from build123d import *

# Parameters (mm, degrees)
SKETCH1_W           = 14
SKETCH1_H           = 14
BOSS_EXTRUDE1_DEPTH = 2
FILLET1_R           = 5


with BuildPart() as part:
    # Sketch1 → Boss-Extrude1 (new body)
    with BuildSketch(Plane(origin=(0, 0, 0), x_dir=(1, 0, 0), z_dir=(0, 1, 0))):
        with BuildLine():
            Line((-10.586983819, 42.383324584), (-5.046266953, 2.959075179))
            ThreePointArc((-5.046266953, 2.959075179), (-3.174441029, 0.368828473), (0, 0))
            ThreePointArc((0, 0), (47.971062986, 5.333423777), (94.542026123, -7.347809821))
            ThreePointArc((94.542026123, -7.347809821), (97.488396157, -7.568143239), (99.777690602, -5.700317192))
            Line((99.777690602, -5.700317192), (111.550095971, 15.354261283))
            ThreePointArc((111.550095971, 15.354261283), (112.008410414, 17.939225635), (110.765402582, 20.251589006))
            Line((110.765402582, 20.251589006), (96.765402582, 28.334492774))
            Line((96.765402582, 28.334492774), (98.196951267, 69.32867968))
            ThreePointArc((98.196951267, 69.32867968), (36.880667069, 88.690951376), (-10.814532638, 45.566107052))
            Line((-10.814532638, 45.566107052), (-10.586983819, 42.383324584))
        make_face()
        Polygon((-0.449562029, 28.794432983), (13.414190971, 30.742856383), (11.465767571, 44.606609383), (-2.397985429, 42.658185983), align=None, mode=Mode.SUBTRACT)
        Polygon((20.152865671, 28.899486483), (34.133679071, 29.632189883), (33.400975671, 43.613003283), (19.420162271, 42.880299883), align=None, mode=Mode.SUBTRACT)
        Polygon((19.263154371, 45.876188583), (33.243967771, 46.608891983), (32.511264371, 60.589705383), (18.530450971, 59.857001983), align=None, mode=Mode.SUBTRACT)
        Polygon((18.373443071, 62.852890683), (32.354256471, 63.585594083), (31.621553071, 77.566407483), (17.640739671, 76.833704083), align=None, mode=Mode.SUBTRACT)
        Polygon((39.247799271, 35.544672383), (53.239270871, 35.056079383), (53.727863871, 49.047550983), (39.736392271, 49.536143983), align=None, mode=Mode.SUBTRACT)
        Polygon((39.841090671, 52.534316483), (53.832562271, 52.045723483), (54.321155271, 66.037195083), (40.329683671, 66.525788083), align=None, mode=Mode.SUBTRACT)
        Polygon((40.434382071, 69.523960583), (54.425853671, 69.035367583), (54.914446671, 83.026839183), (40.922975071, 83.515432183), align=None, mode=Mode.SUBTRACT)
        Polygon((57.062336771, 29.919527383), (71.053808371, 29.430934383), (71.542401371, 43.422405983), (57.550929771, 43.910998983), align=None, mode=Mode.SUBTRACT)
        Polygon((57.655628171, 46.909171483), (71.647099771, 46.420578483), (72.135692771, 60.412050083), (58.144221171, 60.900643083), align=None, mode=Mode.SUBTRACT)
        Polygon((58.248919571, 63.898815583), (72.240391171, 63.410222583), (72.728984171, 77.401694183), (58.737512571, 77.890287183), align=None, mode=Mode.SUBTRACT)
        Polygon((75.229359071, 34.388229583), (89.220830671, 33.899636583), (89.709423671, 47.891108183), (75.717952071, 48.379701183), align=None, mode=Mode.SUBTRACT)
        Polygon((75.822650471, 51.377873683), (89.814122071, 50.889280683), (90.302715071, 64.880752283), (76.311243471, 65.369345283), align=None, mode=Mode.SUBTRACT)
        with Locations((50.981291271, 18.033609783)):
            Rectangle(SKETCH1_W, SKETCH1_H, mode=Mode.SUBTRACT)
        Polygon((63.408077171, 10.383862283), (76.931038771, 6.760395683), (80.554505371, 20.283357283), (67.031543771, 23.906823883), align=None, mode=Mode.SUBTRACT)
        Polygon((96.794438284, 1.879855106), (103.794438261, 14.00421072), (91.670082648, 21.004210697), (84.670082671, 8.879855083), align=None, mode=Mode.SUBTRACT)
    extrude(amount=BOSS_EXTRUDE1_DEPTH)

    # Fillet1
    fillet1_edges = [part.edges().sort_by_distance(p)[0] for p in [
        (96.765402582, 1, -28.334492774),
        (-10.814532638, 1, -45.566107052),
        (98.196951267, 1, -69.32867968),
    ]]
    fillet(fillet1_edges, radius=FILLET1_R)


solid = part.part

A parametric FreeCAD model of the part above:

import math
import FreeCAD as App
import Part
import Sketcher
Q = App.Units.Quantity


def edges_at(feature, points):
    """Names of the edges that pass closest to the given points."""
    edges = feature.Shape.Edges
    near = lambda p: min(range(len(edges)), key=lambda i: edges[i].distToShape(Part.Vertex(*p))[0])
    return sorted({f"Edge{near(p) + 1}" for p in points})

doc = App.newDocument("Part")
body = doc.addObject("PartDesign::Body", "Body")

sketch1 = body.newObject("Sketcher::SketchObject", "Sketch")
sketch1.AttachmentSupport = (doc.getObject("XZ_Plane"), [""])
sketch1.MapMode = "FlatFace"
sketch1.addGeometry([
    Part.LineSegment(App.Vector(-10.6, -42.4, 0), App.Vector(-5, -3, 0)),
    Part.ArcOfCircle(Part.Circle(App.Vector(-1.2, -3.8, 0), App.Vector(0, 0, 1), 4), math.radians(73), math.radians(168)),
    Part.ArcOfCircle(Part.Circle(App.Vector(38, 123.2, 0), App.Vector(0, 0, 1), 128.9), math.radians(-107), math.radians(-64)),
    Part.ArcOfCircle(Part.Circle(App.Vector(96.3, 3.8, 0), App.Vector(0, 0, 1), 4), math.radians(29), math.radians(116)),
    Part.LineSegment(App.Vector(99.8, 5.7, 0), App.Vector(111.6, -15.4, 0)),
    Part.ArcOfCircle(Part.Circle(App.Vector(108.1, -17.3, 0), App.Vector(0, 0, 1), 4), math.radians(-47), math.radians(29)),
    Part.LineSegment(App.Vector(110.8, -20.3, 0), App.Vector(96.8, -28.3, 0)),
    Part.LineSegment(App.Vector(96.8, -28.3, 0), App.Vector(98.2, -69.3, 0)),
    Part.ArcOfCircle(Part.Circle(App.Vector(50.6, -25.5, 0), App.Vector(0, 0, 1), 64.6), math.radians(-162), math.radians(-43)),
    Part.LineSegment(App.Vector(-10.8, -45.6, 0), App.Vector(-10.6, -42.4, 0)),
    Part.LineSegment(App.Vector(13.4, -30.7, 0), App.Vector(-0.4, -28.8, 0)),
    Part.LineSegment(App.Vector(-0.4, -28.8, 0), App.Vector(-2.4, -42.7, 0)),
    Part.LineSegment(App.Vector(-2.4, -42.7, 0), App.Vector(11.5, -44.6, 0)),
    Part.LineSegment(App.Vector(11.5, -44.6, 0), App.Vector(13.4, -30.7, 0)),
    Part.LineSegment(App.Vector(34.1, -29.6, 0), App.Vector(20.2, -28.9, 0)),
    Part.LineSegment(App.Vector(20.2, -28.9, 0), App.Vector(19.4, -42.9, 0)),
    Part.LineSegment(App.Vector(19.4, -42.9, 0), App.Vector(33.4, -43.6, 0)),
    Part.LineSegment(App.Vector(33.4, -43.6, 0), App.Vector(34.1, -29.6, 0)),
    Part.LineSegment(App.Vector(53.2, -35.1, 0), App.Vector(39.2, -35.5, 0)),
    Part.LineSegment(App.Vector(39.2, -35.5, 0), App.Vector(39.7, -49.5, 0)),
    Part.LineSegment(App.Vector(39.7, -49.5, 0), App.Vector(53.7, -49, 0)),
    Part.LineSegment(App.Vector(53.7, -49, 0), App.Vector(53.2, -35.1, 0)),
    Part.LineSegment(App.Vector(58, -11, 0), App.Vector(44, -11, 0)),
    Part.LineSegment(App.Vector(44, -11, 0), App.Vector(44, -25, 0)),
    Part.LineSegment(App.Vector(44, -25, 0), App.Vector(58, -25, 0)),
    Part.LineSegment(App.Vector(58, -25, 0), App.Vector(58, -11, 0)),
    Part.LineSegment(App.Vector(76.9, -6.8, 0), App.Vector(63.4, -10.4, 0)),
    Part.LineSegment(App.Vector(63.4, -10.4, 0), App.Vector(67, -23.9, 0)),
    Part.LineSegment(App.Vector(67, -23.9, 0), App.Vector(80.6, -20.3, 0)),
    Part.LineSegment(App.Vector(80.6, -20.3, 0), App.Vector(76.9, -6.8, 0)),
    Part.LineSegment(App.Vector(103.8, -14, 0), App.Vector(96.8, -1.9, 0)),
    Part.LineSegment(App.Vector(96.8, -1.9, 0), App.Vector(84.7, -8.9, 0)),
    Part.LineSegment(App.Vector(84.7, -8.9, 0), App.Vector(91.7, -21, 0)),
    Part.LineSegment(App.Vector(91.7, -21, 0), App.Vector(103.8, -14, 0)),
    Part.LineSegment(App.Vector(71.1, -29.4, 0), App.Vector(57.1, -29.9, 0)),
    Part.LineSegment(App.Vector(57.1, -29.9, 0), App.Vector(57.6, -43.9, 0)),
    Part.LineSegment(App.Vector(57.6, -43.9, 0), App.Vector(71.5, -43.4, 0)),
    Part.LineSegment(App.Vector(71.5, -43.4, 0), App.Vector(71.1, -29.4, 0)),
    Part.LineSegment(App.Vector(89.2, -33.9, 0), App.Vector(75.2, -34.4, 0)),
    Part.LineSegment(App.Vector(75.2, -34.4, 0), App.Vector(75.7, -48.4, 0)),
    Part.LineSegment(App.Vector(75.7, -48.4, 0), App.Vector(89.7, -47.9, 0)),
    Part.LineSegment(App.Vector(89.7, -47.9, 0), App.Vector(89.2, -33.9, 0)),
    Part.LineSegment(App.Vector(33.2, -46.6, 0), App.Vector(19.3, -45.9, 0)),
    Part.LineSegment(App.Vector(19.3, -45.9, 0), App.Vector(18.5, -59.9, 0)),
    Part.LineSegment(App.Vector(18.5, -59.9, 0), App.Vector(32.5, -60.6, 0)),
    Part.LineSegment(App.Vector(32.5, -60.6, 0), App.Vector(33.2, -46.6, 0)),
    Part.LineSegment(App.Vector(53.8, -52, 0), App.Vector(39.8, -52.5, 0)),
    Part.LineSegment(App.Vector(39.8, -52.5, 0), App.Vector(40.3, -66.5, 0)),
    Part.LineSegment(App.Vector(40.3, -66.5, 0), App.Vector(54.3, -66, 0)),
    Part.LineSegment(App.Vector(54.3, -66, 0), App.Vector(53.8, -52, 0)),
    Part.LineSegment(App.Vector(32.4, -63.6, 0), App.Vector(18.4, -62.9, 0)),
    Part.LineSegment(App.Vector(18.4, -62.9, 0), App.Vector(17.6, -76.8, 0)),
    Part.LineSegment(App.Vector(17.6, -76.8, 0), App.Vector(31.6, -77.6, 0)),
    Part.LineSegment(App.Vector(31.6, -77.6, 0), App.Vector(32.4, -63.6, 0)),
    Part.LineSegment(App.Vector(54.4, -69, 0), App.Vector(40.4, -69.5, 0)),
    Part.LineSegment(App.Vector(40.4, -69.5, 0), App.Vector(40.9, -83.5, 0)),
    Part.LineSegment(App.Vector(40.9, -83.5, 0), App.Vector(54.9, -83, 0)),
    Part.LineSegment(App.Vector(54.9, -83, 0), App.Vector(54.4, -69, 0)),
    Part.LineSegment(App.Vector(71.6, -46.4, 0), App.Vector(57.7, -46.9, 0)),
    Part.LineSegment(App.Vector(57.7, -46.9, 0), App.Vector(58.1, -60.9, 0)),
    Part.LineSegment(App.Vector(58.1, -60.9, 0), App.Vector(72.1, -60.4, 0)),
    Part.LineSegment(App.Vector(72.1, -60.4, 0), App.Vector(71.6, -46.4, 0)),
    Part.LineSegment(App.Vector(89.8, -50.9, 0), App.Vector(75.8, -51.4, 0)),
    Part.LineSegment(App.Vector(75.8, -51.4, 0), App.Vector(76.3, -65.4, 0)),
    Part.LineSegment(App.Vector(76.3, -65.4, 0), App.Vector(90.3, -64.9, 0)),
    Part.LineSegment(App.Vector(90.3, -64.9, 0), App.Vector(89.8, -50.9, 0)),
    Part.LineSegment(App.Vector(72.2, -63.4, 0), App.Vector(58.2, -63.9, 0)),
    Part.LineSegment(App.Vector(58.2, -63.9, 0), App.Vector(58.7, -77.9, 0)),
    Part.LineSegment(App.Vector(58.7, -77.9, 0), App.Vector(72.7, -77.4, 0)),
    Part.LineSegment(App.Vector(72.7, -77.4, 0), App.Vector(72.2, -63.4, 0)),
], False)
sketch1.addConstraint([
    Sketcher.Constraint("Coincident", 0, 2, 1, 2),
    Sketcher.Constraint("Tangent", 1, 1, 2, 1),
    Sketcher.Constraint("Tangent", 2, 2, 3, 2),
    Sketcher.Constraint("Coincident", 3, 1, 4, 1),
    Sketcher.Constraint("Tangent", 4, 2, 5, 2),
    Sketcher.Constraint("Coincident", 5, 1, 6, 1),
    Sketcher.Constraint("Coincident", 6, 2, 7, 1),
    Sketcher.Constraint("Coincident", 7, 2, 8, 2),
    Sketcher.Constraint("Coincident", 8, 1, 9, 1),
    Sketcher.Constraint("Coincident", 9, 2, 0, 1),
    Sketcher.Constraint("Coincident", 10, 2, 11, 1),
    Sketcher.Constraint("Coincident", 11, 2, 12, 1),
    Sketcher.Constraint("Coincident", 12, 2, 13, 1),
    Sketcher.Constraint("Coincident", 13, 2, 10, 1),
    Sketcher.Constraint("Coincident", 14, 2, 15, 1),
    Sketcher.Constraint("Coincident", 15, 2, 16, 1),
    Sketcher.Constraint("Coincident", 16, 2, 17, 1),
    Sketcher.Constraint("Coincident", 17, 2, 14, 1),
    Sketcher.Constraint("Coincident", 18, 2, 19, 1),
    Sketcher.Constraint("Coincident", 19, 2, 20, 1),
    Sketcher.Constraint("Coincident", 20, 2, 21, 1),
    Sketcher.Constraint("Coincident", 21, 2, 18, 1),
    Sketcher.Constraint("Coincident", 22, 2, 23, 1),
    Sketcher.Constraint("Coincident", 23, 2, 24, 1),
    Sketcher.Constraint("Coincident", 24, 2, 25, 1),
    Sketcher.Constraint("Coincident", 25, 2, 22, 1),
    Sketcher.Constraint("Coincident", 26, 2, 27, 1),
    Sketcher.Constraint("Coincident", 27, 2, 28, 1),
    Sketcher.Constraint("Coincident", 28, 2, 29, 1),
    Sketcher.Constraint("Coincident", 29, 2, 26, 1),
    Sketcher.Constraint("Coincident", 30, 2, 31, 1),
    Sketcher.Constraint("Coincident", 31, 2, 32, 1),
    Sketcher.Constraint("Coincident", 32, 2, 33, 1),
    Sketcher.Constraint("Coincident", 33, 2, 30, 1),
    Sketcher.Constraint("Coincident", 34, 2, 35, 1),
    Sketcher.Constraint("Coincident", 35, 2, 36, 1),
    Sketcher.Constraint("Coincident", 36, 2, 37, 1),
    Sketcher.Constraint("Coincident", 37, 2, 34, 1),
    Sketcher.Constraint("Coincident", 38, 2, 39, 1),
    Sketcher.Constraint("Coincident", 39, 2, 40, 1),
    Sketcher.Constraint("Coincident", 40, 2, 41, 1),
    Sketcher.Constraint("Coincident", 41, 2, 38, 1),
    Sketcher.Constraint("Coincident", 42, 2, 43, 1),
    Sketcher.Constraint("Coincident", 43, 2, 44, 1),
    Sketcher.Constraint("Coincident", 44, 2, 45, 1),
    Sketcher.Constraint("Coincident", 45, 2, 42, 1),
    Sketcher.Constraint("Coincident", 46, 2, 47, 1),
    Sketcher.Constraint("Coincident", 47, 2, 48, 1),
    Sketcher.Constraint("Coincident", 48, 2, 49, 1),
    Sketcher.Constraint("Coincident", 49, 2, 46, 1),
    Sketcher.Constraint("Coincident", 50, 2, 51, 1),
    Sketcher.Constraint("Coincident", 51, 2, 52, 1),
    Sketcher.Constraint("Coincident", 52, 2, 53, 1),
    Sketcher.Constraint("Coincident", 53, 2, 50, 1),
    Sketcher.Constraint("Coincident", 54, 2, 55, 1),
    Sketcher.Constraint("Coincident", 55, 2, 56, 1),
    Sketcher.Constraint("Coincident", 56, 2, 57, 1),
    Sketcher.Constraint("Coincident", 57, 2, 54, 1),
    Sketcher.Constraint("Coincident", 58, 2, 59, 1),
    Sketcher.Constraint("Coincident", 59, 2, 60, 1),
    Sketcher.Constraint("Coincident", 60, 2, 61, 1),
    Sketcher.Constraint("Coincident", 61, 2, 58, 1),
    Sketcher.Constraint("Coincident", 62, 2, 63, 1),
    Sketcher.Constraint("Coincident", 63, 2, 64, 1),
    Sketcher.Constraint("Coincident", 64, 2, 65, 1),
    Sketcher.Constraint("Coincident", 65, 2, 62, 1),
    Sketcher.Constraint("Coincident", 66, 2, 67, 1),
    Sketcher.Constraint("Coincident", 67, 2, 68, 1),
    Sketcher.Constraint("Coincident", 68, 2, 69, 1),
    Sketcher.Constraint("Coincident", 69, 2, 66, 1),
    Sketcher.Constraint("Horizontal", 22),
    Sketcher.Constraint("Vertical", 23),
    Sketcher.Constraint("Horizontal", 24),
    Sketcher.Constraint("Vertical", 25),
    Sketcher.Constraint("Coincident", 1, 1, -1, 1),
    Sketcher.Constraint("Perpendicular", 0, 10),
    Sketcher.Constraint("Perpendicular", 10, 11),
    Sketcher.Constraint("Perpendicular", 11, 12),
    Sketcher.Constraint("Perpendicular", 12, 13),
    Sketcher.Constraint("Perpendicular", 14, 15),
    Sketcher.Constraint("Perpendicular", 15, 16),
    Sketcher.Constraint("Perpendicular", 16, 17),
    Sketcher.Constraint("Perpendicular", 7, 18),
    Sketcher.Constraint("Perpendicular", 18, 19),
    Sketcher.Constraint("Perpendicular", 19, 20),
    Sketcher.Constraint("Perpendicular", 20, 21),
    Sketcher.Constraint("Perpendicular", 26, 27),
    Sketcher.Constraint("Perpendicular", 27, 28),
    Sketcher.Constraint("Perpendicular", 28, 29),
    Sketcher.Constraint("Perpendicular", 6, 30),
    Sketcher.Constraint("Perpendicular", 30, 31),
    Sketcher.Constraint("Perpendicular", 31, 32),
    Sketcher.Constraint("Perpendicular", 32, 33),
    Sketcher.Constraint("Perpendicular", 21, 34),
    Sketcher.Constraint("Perpendicular", 34, 35),
    Sketcher.Constraint("Perpendicular", 35, 36),
    Sketcher.Constraint("Perpendicular", 36, 37),
    Sketcher.Constraint("Perpendicular", 37, 38),
    Sketcher.Constraint("Perpendicular", 38, 39),
    Sketcher.Constraint("Perpendicular", 39, 40),
    Sketcher.Constraint("Perpendicular", 40, 41),
    Sketcher.Constraint("Perpendicular", 17, 42),
    Sketcher.Constraint("Perpendicular", 42, 43),
    Sketcher.Constraint("Perpendicular", 43, 44),
    Sketcher.Constraint("Perpendicular", 44, 45),
    Sketcher.Constraint("Perpendicular", 41, 46),
    Sketcher.Constraint("Perpendicular", 46, 47),
    Sketcher.Constraint("Perpendicular", 47, 48),
    Sketcher.Constraint("Perpendicular", 48, 49),
    Sketcher.Constraint("Perpendicular", 45, 50),
    Sketcher.Constraint("Perpendicular", 50, 51),
    Sketcher.Constraint("Perpendicular", 51, 52),
    Sketcher.Constraint("Perpendicular", 52, 53),
    Sketcher.Constraint("Perpendicular", 49, 54),
    Sketcher.Constraint("Perpendicular", 54, 55),
    Sketcher.Constraint("Perpendicular", 55, 56),
    Sketcher.Constraint("Perpendicular", 56, 57),
    Sketcher.Constraint("Perpendicular", 57, 58),
    Sketcher.Constraint("Perpendicular", 58, 59),
    Sketcher.Constraint("Perpendicular", 59, 60),
    Sketcher.Constraint("Perpendicular", 60, 61),
    Sketcher.Constraint("Perpendicular", 61, 62),
    Sketcher.Constraint("Perpendicular", 62, 63),
    Sketcher.Constraint("Perpendicular", 63, 64),
    Sketcher.Constraint("Perpendicular", 64, 65),
    Sketcher.Constraint("Perpendicular", 65, 66),
    Sketcher.Constraint("Perpendicular", 66, 67),
    Sketcher.Constraint("Perpendicular", 67, 68),
    Sketcher.Constraint("Perpendicular", 68, 69),
    Sketcher.Constraint("Equal", 24, 23),
    Sketcher.Constraint("Equal", 10, 11),
    Sketcher.Constraint("Equal", 13, 14),
    Sketcher.Constraint("Equal", 14, 15),
    Sketcher.Constraint("Equal", 17, 18),
    Sketcher.Constraint("Equal", 18, 19),
    Sketcher.Constraint("Equal", 21, 26),
    Sketcher.Constraint("Equal", 26, 27),
    Sketcher.Constraint("Equal", 29, 30),
    Sketcher.Constraint("Equal", 30, 31),
    Sketcher.Constraint("Equal", 33, 34),
    Sketcher.Constraint("Equal", 34, 35),
    Sketcher.Constraint("Equal", 37, 38),
    Sketcher.Constraint("Equal", 38, 39),
    Sketcher.Constraint("Equal", 41, 42),
    Sketcher.Constraint("Equal", 42, 43),
    Sketcher.Constraint("Equal", 45, 46),
    Sketcher.Constraint("Equal", 46, 47),
    Sketcher.Constraint("Equal", 49, 50),
    Sketcher.Constraint("Equal", 50, 51),
    Sketcher.Constraint("Equal", 53, 54),
    Sketcher.Constraint("Equal", 54, 55),
    Sketcher.Constraint("Equal", 57, 58),
    Sketcher.Constraint("Equal", 58, 59),
    Sketcher.Constraint("Equal", 61, 62),
    Sketcher.Constraint("Equal", 62, 63),
    Sketcher.Constraint("Equal", 65, 66),
    Sketcher.Constraint("Equal", 66, 67),
    Sketcher.Constraint("Radius", 5, Q("4 mm")),
    Sketcher.Constraint("DistanceX", 22, 2, 22, 1, Q("14 mm")),
    Sketcher.Constraint("Angle", 0, Q("82 deg")),
    Sketcher.Constraint("Angle", 6, Q("-150 deg")),
    Sketcher.Constraint("Angle", 7, Q("-88 deg")),
    Sketcher.Constraint("Angle", 14, Q("177 deg")),
    Sketcher.Constraint("Angle", 26, Q("-165 deg")),
    Sketcher.Constraint("Distance", 10, Q("14 mm")),
    Sketcher.Constraint("DistanceY", 35, 2, -1, 1, Q("43.910999 mm")),
    Sketcher.Constraint("DistanceY", 43, 2, -1, 1, Q("59.857002 mm")),
    Sketcher.Constraint("Radius", 1, Q("3.965993 mm")),
    Sketcher.Constraint("Radius", 2, Q("128.931896 mm")),
    Sketcher.Constraint("Radius", 3, Q("3.987777 mm")),
    Sketcher.Constraint("Radius", 8, Q("64.648876 mm")),
    Sketcher.Constraint("DistanceX", -1, 1, 2, 3, Q("37.980599 mm")),
    Sketcher.Constraint("DistanceY", 15, 2, -1, 1, Q("42.8803 mm")),
    Sketcher.Constraint("DistanceX", -1, 1, 18, 2, Q("39.247799 mm")),
    Sketcher.Constraint("DistanceX", -1, 1, 36, 2, Q("71.542401 mm")),
    Sketcher.Constraint("DistanceY", 39, 2, -1, 1, Q("48.379701 mm")),
    Sketcher.Constraint("DistanceX", -1, 1, 61, 2, Q("71.6471 mm")),
    Sketcher.Constraint("Distance", 4, Q("24.122289 mm")),
    Sketcher.Constraint("DistanceX", -1, 1, 5, 3, Q("108.058789 mm")),
    Sketcher.Constraint("DistanceY", -1, 1, 2, 2, Q("7.34781 mm")),
    Sketcher.Constraint("DistanceX", -1, 1, 3, 1, Q("99.777691 mm")),
    Sketcher.Constraint("DistanceY", 5, 1, -1, 1, Q("20.251589 mm")),
    Sketcher.Constraint("DistanceX", -1, 1, 7, 2, Q("98.196951 mm")),
    Sketcher.Constraint("DistanceY", 7, 2, -1, 1, Q("69.32868 mm")),
    Sketcher.Constraint("DistanceY", 12, 2, -1, 1, Q("44.606609 mm")),
    Sketcher.Constraint("DistanceX", -1, 1, 13, 2, Q("13.414191 mm")),
    Sketcher.Constraint("DistanceX", -1, 1, 17, 2, Q("34.133679 mm")),
    Sketcher.Constraint("DistanceY", 20, 2, -1, 1, Q("49.047551 mm")),
    Sketcher.Constraint("DistanceX", -1, 1, 22, 2, Q("43.981291 mm")),
    Sketcher.Constraint("DistanceY", 22, 2, -1, 1, Q("11.03361 mm")),
    Sketcher.Constraint("DistanceX", -1, 1, 29, 2, Q("76.931039 mm")),
    Sketcher.Constraint("DistanceX", -1, 1, 30, 2, Q("96.794438 mm")),
    Sketcher.Constraint("DistanceY", 32, 2, -1, 1, Q("21.004211 mm")),
    Sketcher.Constraint("DistanceX", -1, 1, 38, 2, Q("75.229359 mm")),
    Sketcher.Constraint("DistanceX", -1, 1, 43, 2, Q("18.530451 mm")),
    Sketcher.Constraint("DistanceX", -1, 1, 46, 2, Q("39.841091 mm")),
    Sketcher.Constraint("DistanceY", 47, 2, -1, 1, Q("66.525788 mm")),
    Sketcher.Constraint("DistanceY", 50, 2, -1, 1, Q("62.852891 mm")),
    Sketcher.Constraint("DistanceX", -1, 1, 51, 2, Q("17.64074 mm")),
    Sketcher.Constraint("DistanceY", 54, 2, -1, 1, Q("69.523961 mm")),
    Sketcher.Constraint("DistanceY", 58, 2, -1, 1, Q("46.909171 mm")),
    Sketcher.Constraint("DistanceX", -1, 1, 62, 2, Q("75.82265 mm")),
    Sketcher.Constraint("DistanceY", 65, 2, -1, 1, Q("50.889281 mm")),
    Sketcher.Constraint("DistanceX", -1, 1, 66, 2, Q("58.24892 mm")),
    Sketcher.Constraint("Distance", 0, Q("39.811694 mm")),
    Sketcher.Constraint("Distance", 9, Q("3.190906 mm")),
    Sketcher.Constraint("DistanceX", -1, 1, 8, 3, Q("50.649648 mm")),
    Sketcher.Constraint("DistanceX", 0, 2, -1, 1, Q("5.046267 mm")),
    Sketcher.Constraint("DistanceY", 26, 2, -1, 1, Q("10.383862 mm")),
    Sketcher.Constraint("DistanceX", -1, 1, 54, 2, Q("40.434382 mm")),
    Sketcher.Constraint("DistanceY", 66, 2, -1, 1, Q("63.898816 mm")),
])
pad1 = body.newObject("PartDesign::Pad", "Pad")
pad1.Profile = sketch1
pad1.Length = 2
pad1.Reversed = True
doc.recompute()

fillet = body.newObject("PartDesign::Fillet", "Fillet")
fillet.Base = (pad1, edges_at(pad1, [(96.765, 1, -28.334), (-10.815, 1, -45.566), (98.197, 1, -69.329)]))
fillet.Radius = 5

doc.recompute()
